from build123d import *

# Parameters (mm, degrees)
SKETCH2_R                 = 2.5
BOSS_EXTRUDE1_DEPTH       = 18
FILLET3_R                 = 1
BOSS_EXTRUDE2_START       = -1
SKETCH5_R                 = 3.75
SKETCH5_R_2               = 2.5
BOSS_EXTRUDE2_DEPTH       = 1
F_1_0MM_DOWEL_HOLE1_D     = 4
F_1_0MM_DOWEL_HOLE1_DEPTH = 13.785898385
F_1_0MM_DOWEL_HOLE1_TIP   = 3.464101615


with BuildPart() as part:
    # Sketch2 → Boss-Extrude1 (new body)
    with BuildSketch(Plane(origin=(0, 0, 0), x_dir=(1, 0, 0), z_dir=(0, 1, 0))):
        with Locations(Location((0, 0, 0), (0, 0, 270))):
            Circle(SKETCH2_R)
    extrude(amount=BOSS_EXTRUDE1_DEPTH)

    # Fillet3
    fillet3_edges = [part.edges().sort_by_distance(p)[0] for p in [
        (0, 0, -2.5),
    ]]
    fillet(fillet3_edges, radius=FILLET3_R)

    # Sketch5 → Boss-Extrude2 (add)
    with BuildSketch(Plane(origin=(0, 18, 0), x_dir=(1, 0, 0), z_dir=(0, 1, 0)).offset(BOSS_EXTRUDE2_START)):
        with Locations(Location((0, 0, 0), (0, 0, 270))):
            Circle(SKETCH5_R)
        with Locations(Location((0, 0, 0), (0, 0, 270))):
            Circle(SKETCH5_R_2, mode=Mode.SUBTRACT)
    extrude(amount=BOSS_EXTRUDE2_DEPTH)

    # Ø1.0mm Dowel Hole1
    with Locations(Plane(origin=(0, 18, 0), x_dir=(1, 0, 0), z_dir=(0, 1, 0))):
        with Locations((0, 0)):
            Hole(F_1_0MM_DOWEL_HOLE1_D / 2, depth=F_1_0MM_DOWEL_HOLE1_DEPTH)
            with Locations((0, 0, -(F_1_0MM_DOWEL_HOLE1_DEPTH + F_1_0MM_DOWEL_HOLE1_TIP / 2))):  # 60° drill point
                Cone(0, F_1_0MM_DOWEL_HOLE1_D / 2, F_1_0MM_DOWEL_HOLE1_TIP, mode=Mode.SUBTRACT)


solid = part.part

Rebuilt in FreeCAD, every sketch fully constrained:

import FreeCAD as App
import Part
import Sketcher
from FreeCAD import Vector


def edges_at(feature, points):
    """Names of the edges that pass closest to the given points."""
    edges = feature.Shape.Edges
    near = lambda p: min(range(len(edges)), key=lambda i: edges[i].distToShape(Part.Vertex(*p))[0])
    return sorted({f"Edge{near(p) + 1}" for p in points})

doc = App.newDocument("Part")
params = doc.addObject("Spreadsheet::Sheet", "Params")
for row, (alias, value) in enumerate([
    ("sketch1_diameter", "5 mm"),
    ("pad1_length", "18 mm"),
    ("fillet_radius", "1 mm"),
    ("sketch2_diameter", "5 mm"),
    ("sketch2_diameter2", "7.5 mm"),
    ("pad2_length", "1 mm"),
    ("sketch3_diameter", "4 mm"),
    ("hole_diameter", "4 mm"),
    ("hole_depth", "13.785898 mm"),
], start=1):
    params.set(f"A{row}", alias)
    params.set(f"B{row}", "=" + value)
    params.setAlias(f"B{row}", alias)

body = doc.addObject("PartDesign::Body", "Body")

sketch1 = body.newObject("Sketcher::SketchObject", "Sketch")
sketch1.AttachmentSupport = (doc.getObject("XZ_Plane"), [""])
sketch1.MapMode = "FlatFace"
sketch1.addGeometry(Part.Circle(Vector(0, 0, 0), Vector(0, 0, 1), 2.5), False)
sketch1.addConstraint(Sketcher.Constraint("Coincident", 0, 3, -1, 1))
sketch1.addConstraint(Sketcher.Constraint("Diameter", 0, 5.0))
sketch1.setExpression("Constraints[1]", "Params.sketch1_diameter")
pad1 = body.newObject("PartDesign::Pad", "Pad")
pad1.Profile = sketch1
pad1.setExpression("Length", "Params.pad1_length")
pad1.Reversed = True
doc.recompute()

fillet = body.newObject("PartDesign::Fillet", "Fillet")
fillet.Base = (pad1, edges_at(pad1, [(0, 0, -2.5)]))
fillet.setExpression("Radius", "Params.fillet_radius")

sketch2 = body.newObject("Sketcher::SketchObject", "Sketch001")
sketch2.AttachmentSupport = (doc.getObject("XZ_Plane"), [""])
sketch2.MapMode = "FlatFace"
sketch2.AttachmentOffset = App.Placement(Vector(0, 0, -17), App.Rotation())
sketch2.addGeometry(Part.Circle(Vector(0, 0, 0), Vector(0, 0, 1), 3.8), False)
sketch2.addGeometry(Part.Circle(Vector(0, 0, 0), Vector(0, 0, 1), 2.5), False)
sketch2.addConstraint(Sketcher.Constraint("Coincident", 0, 3, -1, 1))
sketch2.addConstraint(Sketcher.Constraint("Coincident", 1, 3, -1, 1))
sketch2.addConstraint(Sketcher.Constraint("Diameter", 1, 5.0))
sketch2.addConstraint(Sketcher.Constraint("Diameter", 0, 7.5))
sketch2.setExpression("Constraints[2]", "Params.sketch2_diameter")
sketch2.setExpression("Constraints[3]", "Params.sketch2_diameter2")
pad2 = body.newObject("PartDesign::Pad", "Pad001")
pad2.Profile = sketch2
pad2.setExpression("Length", "Params.pad2_length")
pad2.Reversed = True

sketch3 = body.newObject("Sketcher::SketchObject", "Sketch002")
sketch3.AttachmentSupport = (doc.getObject("XZ_Plane"), [""])
sketch3.MapMode = "FlatFace"
sketch3.AttachmentOffset = App.Placement(Vector(0, 0, -18), App.Rotation())
sketch3.addGeometry(Part.Circle(Vector(0, 0, 0), Vector(0, 0, 1), 2), False)
sketch3.addConstraint(Sketcher.Constraint("Coincident", 0, 3, -1, 1))
sketch3.addConstraint(Sketcher.Constraint("Diameter", 0, 4.0))
sketch3.setExpression("Constraints[1]", "Params.sketch3_diameter")
doc.recompute()
hole = body.newObject("PartDesign::Hole", "Hole")
hole.Profile = sketch3
hole.ThreadType = "None"
hole.setExpression("Diameter", "Params.hole_diameter")
hole.DepthType = "Dimension"
hole.setExpression("Depth", "Params.hole_depth")
hole.DrillPoint = "Angled"
hole.DrillPointAngle = 60
hole.Reversed = True

doc.recompute()
